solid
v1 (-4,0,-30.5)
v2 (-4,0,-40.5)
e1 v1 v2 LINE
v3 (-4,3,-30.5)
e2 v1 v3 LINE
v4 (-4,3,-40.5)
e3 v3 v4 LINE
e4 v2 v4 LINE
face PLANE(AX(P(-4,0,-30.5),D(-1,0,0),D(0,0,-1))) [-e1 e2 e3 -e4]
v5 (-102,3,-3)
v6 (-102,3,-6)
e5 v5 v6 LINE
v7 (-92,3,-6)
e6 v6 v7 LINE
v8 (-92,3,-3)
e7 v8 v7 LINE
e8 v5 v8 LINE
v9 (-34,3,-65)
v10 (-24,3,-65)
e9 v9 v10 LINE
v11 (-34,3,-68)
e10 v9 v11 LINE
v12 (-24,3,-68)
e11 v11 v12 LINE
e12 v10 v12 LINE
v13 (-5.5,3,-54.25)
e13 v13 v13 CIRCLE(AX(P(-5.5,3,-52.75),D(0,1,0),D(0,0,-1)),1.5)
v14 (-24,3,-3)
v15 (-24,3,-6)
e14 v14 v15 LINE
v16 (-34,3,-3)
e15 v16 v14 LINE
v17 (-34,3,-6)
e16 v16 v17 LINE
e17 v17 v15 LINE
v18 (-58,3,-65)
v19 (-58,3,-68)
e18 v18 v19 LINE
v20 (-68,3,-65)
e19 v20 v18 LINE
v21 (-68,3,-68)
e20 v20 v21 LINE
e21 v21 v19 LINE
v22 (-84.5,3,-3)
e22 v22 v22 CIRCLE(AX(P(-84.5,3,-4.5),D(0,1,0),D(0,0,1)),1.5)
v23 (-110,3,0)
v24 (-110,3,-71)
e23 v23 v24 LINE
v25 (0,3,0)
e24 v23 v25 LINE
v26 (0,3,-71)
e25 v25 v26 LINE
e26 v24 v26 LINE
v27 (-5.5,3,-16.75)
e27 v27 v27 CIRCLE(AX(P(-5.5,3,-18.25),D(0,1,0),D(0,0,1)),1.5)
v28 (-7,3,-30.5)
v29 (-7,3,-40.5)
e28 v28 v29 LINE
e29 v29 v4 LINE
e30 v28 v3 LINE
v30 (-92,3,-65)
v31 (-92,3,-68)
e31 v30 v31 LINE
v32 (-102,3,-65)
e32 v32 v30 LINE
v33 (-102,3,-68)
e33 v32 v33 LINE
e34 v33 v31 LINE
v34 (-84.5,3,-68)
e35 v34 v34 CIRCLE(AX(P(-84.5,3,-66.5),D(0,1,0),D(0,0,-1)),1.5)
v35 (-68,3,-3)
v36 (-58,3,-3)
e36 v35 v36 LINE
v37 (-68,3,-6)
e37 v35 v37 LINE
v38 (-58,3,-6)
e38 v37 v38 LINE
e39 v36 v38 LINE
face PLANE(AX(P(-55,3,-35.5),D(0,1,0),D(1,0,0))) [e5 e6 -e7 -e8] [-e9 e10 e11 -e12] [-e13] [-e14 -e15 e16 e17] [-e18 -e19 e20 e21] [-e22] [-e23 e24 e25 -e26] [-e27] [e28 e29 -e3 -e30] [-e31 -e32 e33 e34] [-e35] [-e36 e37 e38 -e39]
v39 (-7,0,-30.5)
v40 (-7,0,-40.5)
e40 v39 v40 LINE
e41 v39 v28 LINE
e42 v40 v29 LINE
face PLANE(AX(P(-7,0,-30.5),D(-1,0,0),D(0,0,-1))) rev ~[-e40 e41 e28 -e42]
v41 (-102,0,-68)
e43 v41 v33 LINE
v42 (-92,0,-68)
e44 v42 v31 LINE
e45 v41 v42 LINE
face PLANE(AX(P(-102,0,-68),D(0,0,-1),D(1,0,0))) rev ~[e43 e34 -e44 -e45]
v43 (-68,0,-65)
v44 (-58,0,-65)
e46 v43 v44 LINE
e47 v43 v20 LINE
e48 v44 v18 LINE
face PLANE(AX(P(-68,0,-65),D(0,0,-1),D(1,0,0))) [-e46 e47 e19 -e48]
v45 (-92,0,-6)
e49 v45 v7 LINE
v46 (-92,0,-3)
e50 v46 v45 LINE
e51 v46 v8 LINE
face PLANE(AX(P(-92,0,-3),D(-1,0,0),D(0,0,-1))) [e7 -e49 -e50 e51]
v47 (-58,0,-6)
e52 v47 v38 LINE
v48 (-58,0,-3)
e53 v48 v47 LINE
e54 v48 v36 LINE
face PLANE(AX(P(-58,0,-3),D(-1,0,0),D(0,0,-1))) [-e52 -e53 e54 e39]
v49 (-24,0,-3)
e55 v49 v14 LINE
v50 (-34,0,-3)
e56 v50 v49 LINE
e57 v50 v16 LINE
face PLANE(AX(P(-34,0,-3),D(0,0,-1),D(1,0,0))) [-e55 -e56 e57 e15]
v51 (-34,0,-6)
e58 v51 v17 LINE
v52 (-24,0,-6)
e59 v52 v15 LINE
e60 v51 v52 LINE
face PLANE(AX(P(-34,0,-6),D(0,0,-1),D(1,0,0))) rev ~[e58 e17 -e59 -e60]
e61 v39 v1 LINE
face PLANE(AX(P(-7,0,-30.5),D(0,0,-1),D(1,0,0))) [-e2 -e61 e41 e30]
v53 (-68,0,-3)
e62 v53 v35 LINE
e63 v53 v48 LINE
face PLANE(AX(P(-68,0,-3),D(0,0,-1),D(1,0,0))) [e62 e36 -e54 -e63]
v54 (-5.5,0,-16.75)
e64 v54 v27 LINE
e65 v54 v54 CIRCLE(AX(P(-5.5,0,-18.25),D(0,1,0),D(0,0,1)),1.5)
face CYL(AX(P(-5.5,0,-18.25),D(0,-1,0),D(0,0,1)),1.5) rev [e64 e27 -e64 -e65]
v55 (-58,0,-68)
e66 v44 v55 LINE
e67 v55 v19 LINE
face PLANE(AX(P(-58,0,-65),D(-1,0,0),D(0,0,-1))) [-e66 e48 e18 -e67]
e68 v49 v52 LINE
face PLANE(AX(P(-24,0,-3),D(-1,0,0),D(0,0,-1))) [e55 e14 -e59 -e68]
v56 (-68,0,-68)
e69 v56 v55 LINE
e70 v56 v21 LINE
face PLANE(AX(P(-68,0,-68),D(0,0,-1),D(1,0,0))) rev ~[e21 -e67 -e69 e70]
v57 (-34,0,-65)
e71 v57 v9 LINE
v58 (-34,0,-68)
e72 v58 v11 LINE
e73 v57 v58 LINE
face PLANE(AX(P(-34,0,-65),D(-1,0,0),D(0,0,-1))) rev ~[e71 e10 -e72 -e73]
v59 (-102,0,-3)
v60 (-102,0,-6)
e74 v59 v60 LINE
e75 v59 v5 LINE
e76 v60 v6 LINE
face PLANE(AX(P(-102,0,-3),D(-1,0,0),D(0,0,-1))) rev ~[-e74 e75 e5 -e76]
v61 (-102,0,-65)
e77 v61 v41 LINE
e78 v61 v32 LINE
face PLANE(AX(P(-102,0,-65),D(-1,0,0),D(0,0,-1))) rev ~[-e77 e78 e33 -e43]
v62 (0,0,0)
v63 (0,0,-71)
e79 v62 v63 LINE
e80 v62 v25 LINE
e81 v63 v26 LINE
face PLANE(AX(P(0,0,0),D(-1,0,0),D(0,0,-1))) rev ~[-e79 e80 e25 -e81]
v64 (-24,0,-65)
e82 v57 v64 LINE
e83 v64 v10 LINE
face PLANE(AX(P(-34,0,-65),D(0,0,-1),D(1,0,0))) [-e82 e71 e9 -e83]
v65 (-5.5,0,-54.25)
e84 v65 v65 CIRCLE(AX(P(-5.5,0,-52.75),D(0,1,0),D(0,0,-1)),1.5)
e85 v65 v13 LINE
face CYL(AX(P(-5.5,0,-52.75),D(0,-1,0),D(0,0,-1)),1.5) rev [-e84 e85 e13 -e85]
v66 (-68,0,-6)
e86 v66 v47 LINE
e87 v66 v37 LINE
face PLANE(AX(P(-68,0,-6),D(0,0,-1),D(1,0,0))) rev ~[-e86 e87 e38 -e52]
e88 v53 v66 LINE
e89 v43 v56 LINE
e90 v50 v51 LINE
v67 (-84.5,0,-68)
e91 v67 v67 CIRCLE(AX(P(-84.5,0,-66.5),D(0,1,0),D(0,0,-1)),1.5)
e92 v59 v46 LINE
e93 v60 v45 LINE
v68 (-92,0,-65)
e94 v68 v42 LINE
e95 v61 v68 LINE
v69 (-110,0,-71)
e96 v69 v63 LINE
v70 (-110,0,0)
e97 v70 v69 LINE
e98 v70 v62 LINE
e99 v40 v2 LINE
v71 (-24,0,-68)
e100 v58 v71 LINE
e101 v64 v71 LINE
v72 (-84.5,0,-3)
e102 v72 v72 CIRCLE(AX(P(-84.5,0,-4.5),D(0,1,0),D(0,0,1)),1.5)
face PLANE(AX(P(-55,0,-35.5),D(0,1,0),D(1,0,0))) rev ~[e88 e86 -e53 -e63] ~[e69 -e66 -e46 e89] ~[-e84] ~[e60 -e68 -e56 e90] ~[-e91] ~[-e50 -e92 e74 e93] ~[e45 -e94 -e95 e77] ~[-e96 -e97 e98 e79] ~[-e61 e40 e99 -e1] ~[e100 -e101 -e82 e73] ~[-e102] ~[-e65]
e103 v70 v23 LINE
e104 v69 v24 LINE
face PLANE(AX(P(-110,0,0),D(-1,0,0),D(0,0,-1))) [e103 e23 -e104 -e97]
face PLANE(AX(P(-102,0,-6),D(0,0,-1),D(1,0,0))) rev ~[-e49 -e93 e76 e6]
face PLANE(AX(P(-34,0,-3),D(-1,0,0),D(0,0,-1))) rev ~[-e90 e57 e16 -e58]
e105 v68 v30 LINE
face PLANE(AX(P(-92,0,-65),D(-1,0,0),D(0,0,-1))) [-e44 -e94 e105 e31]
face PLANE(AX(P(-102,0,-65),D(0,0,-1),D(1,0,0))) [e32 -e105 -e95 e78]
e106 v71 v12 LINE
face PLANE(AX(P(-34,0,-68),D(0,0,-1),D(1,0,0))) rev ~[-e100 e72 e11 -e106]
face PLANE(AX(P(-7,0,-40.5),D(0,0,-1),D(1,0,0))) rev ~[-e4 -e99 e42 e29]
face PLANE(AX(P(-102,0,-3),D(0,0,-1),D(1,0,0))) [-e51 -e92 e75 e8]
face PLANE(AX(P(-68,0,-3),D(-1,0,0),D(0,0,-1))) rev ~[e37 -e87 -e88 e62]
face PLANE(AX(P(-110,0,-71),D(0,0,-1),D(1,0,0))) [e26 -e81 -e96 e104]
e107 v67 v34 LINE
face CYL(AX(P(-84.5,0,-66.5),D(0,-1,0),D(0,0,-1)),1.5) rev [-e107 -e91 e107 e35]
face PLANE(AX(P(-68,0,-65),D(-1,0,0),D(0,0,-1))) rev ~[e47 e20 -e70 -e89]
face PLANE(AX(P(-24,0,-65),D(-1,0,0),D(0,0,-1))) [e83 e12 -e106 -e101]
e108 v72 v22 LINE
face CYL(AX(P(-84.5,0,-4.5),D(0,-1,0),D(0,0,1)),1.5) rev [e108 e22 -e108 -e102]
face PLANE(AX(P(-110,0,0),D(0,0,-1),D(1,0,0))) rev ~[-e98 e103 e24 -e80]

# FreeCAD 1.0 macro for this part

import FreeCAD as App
import Part
import Sketcher
from FreeCAD import Vector


def add_polygon(sketch, points):
    """Adds a closed chain of lines whose ends are joined by coincident constraints."""
    first, n = sketch.GeometryCount, len(points)
    for a, b in zip(points, points[1:] + points[:1]):
        sketch.addGeometry(Part.LineSegment(App.Vector(*a, 0), App.Vector(*b, 0)), False)
    for i in range(n):
        sketch.addConstraint(Sketcher.Constraint("Coincident", first + i, 2, first + (i + 1) % n, 1))

doc = App.newDocument("Part")
body = doc.addObject("PartDesign::Body", "Body")

sketch1 = body.newObject("Sketcher::SketchObject", "Sketch")
sketch1.AttachmentSupport = (doc.getObject("XZ_Plane"), [""])
sketch1.MapMode = "FlatFace"
add_polygon(sketch1, [(-110, -71), (-110, 0), (0, 0), (0, -71)])
add_polygon(sketch1, [(-92, -3), (-102, -3), (-102, -6), (-92, -6)])
sketch1.addGeometry(Part.Circle(Vector(-84.5, -4.5, 0), Vector(0, 0, 1), 1.5), False)
add_polygon(sketch1, [(-58, -3), (-68, -3), (-68, -6), (-58, -6)])
add_polygon(sketch1, [(-24, -3), (-34, -3), (-34, -6), (-24, -6)])
sketch1.addGeometry(Part.Circle(Vector(-5.5, -18.25, 0), Vector(0, 0, 1), 1.5), False)
add_polygon(sketch1, [(-92, -65), (-102, -65), (-102, -68), (-92, -68)])
sketch1.addGeometry(Part.Circle(Vector(-84.5, -66.5, 0), Vector(0, 0, 1), 1.5), False)
add_polygon(sketch1, [(-58, -65), (-68, -65), (-68, -68), (-58, -68)])
add_polygon(sketch1, [(-4, -30.5), (-7, -30.5), (-7, -40.5), (-4, -40.5)])
add_polygon(sketch1, [(-24, -65), (-34, -65), (-34, -68), (-24, -68)])
sketch1.addGeometry(Part.Circle(Vector(-5.5, -52.75, 0), Vector(0, 0, 1), 1.5), False)
sketch1.addConstraint(Sketcher.Constraint("Vertical", 0))
sketch1.addConstraint(Sketcher.Constraint("Horizontal", 1))
sketch1.addConstraint(Sketcher.Constraint("Vertical", 2))
sketch1.addConstraint(Sketcher.Constraint("Horizontal", 3))
sketch1.addConstraint(Sketcher.Constraint("Horizontal", 4))
sketch1.addConstraint(Sketcher.Constraint("Vertical", 5))
sketch1.addConstraint(Sketcher.Constraint("Horizontal", 6))
sketch1.addConstraint(Sketcher.Constraint("Vertical", 7))
sketch1.addConstraint(Sketcher.Constraint("Horizontal", 9))
sketch1.addConstraint(Sketcher.Constraint("Vertical", 10))
sketch1.addConstraint(Sketcher.Constraint("Horizontal", 11))
sketch1.addConstraint(Sketcher.Constraint("Vertical", 12))
sketch1.addConstraint(Sketcher.Constraint("Horizontal", 13))
sketch1.addConstraint(Sketcher.Constraint("Vertical", 14))
sketch1.addConstraint(Sketcher.Constraint("Horizontal", 15))
sketch1.addConstraint(Sketcher.Constraint("Vertical", 16))
sketch1.addConstraint(Sketcher.Constraint("Horizontal", 18))
sketch1.addConstraint(Sketcher.Constraint("Vertical", 19))
sketch1.addConstraint(Sketcher.Constraint("Horizontal", 20))
sketch1.addConstraint(Sketcher.Constraint("Vertical", 21))
sketch1.addConstraint(Sketcher.Constraint("Horizontal", 23))
sketch1.addConstraint(Sketcher.Constraint("Vertical", 24))
sketch1.addConstraint(Sketcher.Constraint("Horizontal", 25))
sketch1.addConstraint(Sketcher.Constraint("Vertical", 26))
sketch1.addConstraint(Sketcher.Constraint("Horizontal", 27))
sketch1.addConstraint(Sketcher.Constraint("Vertical", 28))
sketch1.addConstraint(Sketcher.Constraint("Horizontal", 29))
sketch1.addConstraint(Sketcher.Constraint("Vertical", 30))
sketch1.addConstraint(Sketcher.Constraint("Horizontal", 31))
sketch1.addConstraint(Sketcher.Constraint("Vertical", 32))
sketch1.addConstraint(Sketcher.Constraint("Horizontal", 33))
sketch1.addConstraint(Sketcher.Constraint("Vertical", 34))
sketch1.addConstraint(Sketcher.Constraint("Coincident", 1, 2, -1, 1))
sketch1.addConstraint(Sketcher.Constraint("Equal", 8, 17))
sketch1.addConstraint(Sketcher.Constraint("Equal", 17, 22))
sketch1.addConstraint(Sketcher.Constraint("Equal", 22, 35))
sketch1.addConstraint(Sketcher.Constraint("Horizontal", 7, 2, 9, 2))
sketch1.addConstraint(Sketcher.Constraint("Horizontal", 6, 2, 10, 2))
sketch1.addConstraint(Sketcher.Constraint("Horizontal", 12, 2, 13, 2))
sketch1.addConstraint(Sketcher.Constraint("Horizontal", 11, 2, 14, 2))
sketch1.addConstraint(Sketcher.Constraint("Horizontal", 21, 2, 23, 2))
sketch1.addConstraint(Sketcher.Constraint("Horizontal", 20, 2, 24, 2))
sketch1.addConstraint(Sketcher.Constraint("Horizontal", 26, 2, 31, 2))
sketch1.addConstraint(Sketcher.Constraint("Horizontal", 25, 2, 32, 2))
sketch1.addConstraint(Sketcher.Constraint("Vertical", 8, 3, 22, 3))
sketch1.addConstraint(Sketcher.Constraint("Vertical", 17, 3, 35, 3))
sketch1.addConstraint(Sketcher.Constraint("Vertical", 5, 2, 18, 2))
sketch1.addConstraint(Sketcher.Constraint("Vertical", 7, 2, 20, 2))
sketch1.addConstraint(Sketcher.Constraint("Vertical", 10, 2, 23, 2))
sketch1.addConstraint(Sketcher.Constraint("Vertical", 12, 2, 25, 2))
sketch1.addConstraint(Sketcher.Constraint("Vertical", 14, 2, 31, 2))
sketch1.addConstraint(Sketcher.Constraint("Vertical", 16, 2, 33, 2))
sketch1.addConstraint(Sketcher.Constraint("Equal", 6, 9))
sketch1.addConstraint(Sketcher.Constraint("Equal", 11, 13))
sketch1.addConstraint(Sketcher.Constraint("Equal", 29, 5))
sketch1.addConstraint(Sketcher.Constraint("Equal", 16, 19))
sketch1.addConstraint(Sketcher.Constraint("Equal", 33, 28))
sketch1.addConstraint(Sketcher.Constraint("Diameter", 8, 3.0))
sketch1.addConstraint(Sketcher.Constraint("DistanceX", 1, 1, 1, 2, 110.0))
sketch1.addConstraint(Sketcher.Constraint("DistanceX", 4, 2, 4, 1, 10.0))
sketch1.addConstraint(Sketcher.Constraint("DistanceX", 27, 2, 27, 1, 3.0))
sketch1.addConstraint(Sketcher.Constraint("DistanceY", 0, 1, 0, 2, 71.0))
sketch1.addConstraint(Sketcher.Constraint("DistanceX", 4, 2, -1, 1, 102.0))
sketch1.addConstraint(Sketcher.Constraint("DistanceY", 4, 2, -1, 1, 3.0))
sketch1.addConstraint(Sketcher.Constraint("DistanceX", 9, 2, -1, 1, 68.0))
sketch1.addConstraint(Sketcher.Constraint("DistanceX", 13, 2, -1, 1, 34.0))
sketch1.addConstraint(Sketcher.Constraint("DistanceY", 18, 2, -1, 1, 65.0))
sketch1.addConstraint(Sketcher.Constraint("DistanceX", 27, 2, -1, 1, 7.0))
sketch1.addConstraint(Sketcher.Constraint("DistanceX", 8, 3, 17, 3, 79.0))
sketch1.addConstraint(Sketcher.Constraint("DistanceY", 22, 3, 8, 3, 62.0))
sketch1.addConstraint(Sketcher.Constraint("DistanceX", 8, 3, -1, 1, 84.5))
sketch1.addConstraint(Sketcher.Constraint("DistanceY", 8, 3, -1, 1, 4.5))
sketch1.addConstraint(Sketcher.Constraint("DistanceY", 27, 2, -1, 1, 30.5))
sketch1.addConstraint(Sketcher.Constraint("DistanceY", 35, 3, 17, 3, 34.5))
sketch1.addConstraint(Sketcher.Constraint("DistanceY", 17, 3, -1, 1, 18.25))
pad1 = body.newObject("PartDesign::Pad", "Pad")
pad1.Profile = sketch1
pad1.Length = 3
pad1.Reversed = True

doc.recompute()
